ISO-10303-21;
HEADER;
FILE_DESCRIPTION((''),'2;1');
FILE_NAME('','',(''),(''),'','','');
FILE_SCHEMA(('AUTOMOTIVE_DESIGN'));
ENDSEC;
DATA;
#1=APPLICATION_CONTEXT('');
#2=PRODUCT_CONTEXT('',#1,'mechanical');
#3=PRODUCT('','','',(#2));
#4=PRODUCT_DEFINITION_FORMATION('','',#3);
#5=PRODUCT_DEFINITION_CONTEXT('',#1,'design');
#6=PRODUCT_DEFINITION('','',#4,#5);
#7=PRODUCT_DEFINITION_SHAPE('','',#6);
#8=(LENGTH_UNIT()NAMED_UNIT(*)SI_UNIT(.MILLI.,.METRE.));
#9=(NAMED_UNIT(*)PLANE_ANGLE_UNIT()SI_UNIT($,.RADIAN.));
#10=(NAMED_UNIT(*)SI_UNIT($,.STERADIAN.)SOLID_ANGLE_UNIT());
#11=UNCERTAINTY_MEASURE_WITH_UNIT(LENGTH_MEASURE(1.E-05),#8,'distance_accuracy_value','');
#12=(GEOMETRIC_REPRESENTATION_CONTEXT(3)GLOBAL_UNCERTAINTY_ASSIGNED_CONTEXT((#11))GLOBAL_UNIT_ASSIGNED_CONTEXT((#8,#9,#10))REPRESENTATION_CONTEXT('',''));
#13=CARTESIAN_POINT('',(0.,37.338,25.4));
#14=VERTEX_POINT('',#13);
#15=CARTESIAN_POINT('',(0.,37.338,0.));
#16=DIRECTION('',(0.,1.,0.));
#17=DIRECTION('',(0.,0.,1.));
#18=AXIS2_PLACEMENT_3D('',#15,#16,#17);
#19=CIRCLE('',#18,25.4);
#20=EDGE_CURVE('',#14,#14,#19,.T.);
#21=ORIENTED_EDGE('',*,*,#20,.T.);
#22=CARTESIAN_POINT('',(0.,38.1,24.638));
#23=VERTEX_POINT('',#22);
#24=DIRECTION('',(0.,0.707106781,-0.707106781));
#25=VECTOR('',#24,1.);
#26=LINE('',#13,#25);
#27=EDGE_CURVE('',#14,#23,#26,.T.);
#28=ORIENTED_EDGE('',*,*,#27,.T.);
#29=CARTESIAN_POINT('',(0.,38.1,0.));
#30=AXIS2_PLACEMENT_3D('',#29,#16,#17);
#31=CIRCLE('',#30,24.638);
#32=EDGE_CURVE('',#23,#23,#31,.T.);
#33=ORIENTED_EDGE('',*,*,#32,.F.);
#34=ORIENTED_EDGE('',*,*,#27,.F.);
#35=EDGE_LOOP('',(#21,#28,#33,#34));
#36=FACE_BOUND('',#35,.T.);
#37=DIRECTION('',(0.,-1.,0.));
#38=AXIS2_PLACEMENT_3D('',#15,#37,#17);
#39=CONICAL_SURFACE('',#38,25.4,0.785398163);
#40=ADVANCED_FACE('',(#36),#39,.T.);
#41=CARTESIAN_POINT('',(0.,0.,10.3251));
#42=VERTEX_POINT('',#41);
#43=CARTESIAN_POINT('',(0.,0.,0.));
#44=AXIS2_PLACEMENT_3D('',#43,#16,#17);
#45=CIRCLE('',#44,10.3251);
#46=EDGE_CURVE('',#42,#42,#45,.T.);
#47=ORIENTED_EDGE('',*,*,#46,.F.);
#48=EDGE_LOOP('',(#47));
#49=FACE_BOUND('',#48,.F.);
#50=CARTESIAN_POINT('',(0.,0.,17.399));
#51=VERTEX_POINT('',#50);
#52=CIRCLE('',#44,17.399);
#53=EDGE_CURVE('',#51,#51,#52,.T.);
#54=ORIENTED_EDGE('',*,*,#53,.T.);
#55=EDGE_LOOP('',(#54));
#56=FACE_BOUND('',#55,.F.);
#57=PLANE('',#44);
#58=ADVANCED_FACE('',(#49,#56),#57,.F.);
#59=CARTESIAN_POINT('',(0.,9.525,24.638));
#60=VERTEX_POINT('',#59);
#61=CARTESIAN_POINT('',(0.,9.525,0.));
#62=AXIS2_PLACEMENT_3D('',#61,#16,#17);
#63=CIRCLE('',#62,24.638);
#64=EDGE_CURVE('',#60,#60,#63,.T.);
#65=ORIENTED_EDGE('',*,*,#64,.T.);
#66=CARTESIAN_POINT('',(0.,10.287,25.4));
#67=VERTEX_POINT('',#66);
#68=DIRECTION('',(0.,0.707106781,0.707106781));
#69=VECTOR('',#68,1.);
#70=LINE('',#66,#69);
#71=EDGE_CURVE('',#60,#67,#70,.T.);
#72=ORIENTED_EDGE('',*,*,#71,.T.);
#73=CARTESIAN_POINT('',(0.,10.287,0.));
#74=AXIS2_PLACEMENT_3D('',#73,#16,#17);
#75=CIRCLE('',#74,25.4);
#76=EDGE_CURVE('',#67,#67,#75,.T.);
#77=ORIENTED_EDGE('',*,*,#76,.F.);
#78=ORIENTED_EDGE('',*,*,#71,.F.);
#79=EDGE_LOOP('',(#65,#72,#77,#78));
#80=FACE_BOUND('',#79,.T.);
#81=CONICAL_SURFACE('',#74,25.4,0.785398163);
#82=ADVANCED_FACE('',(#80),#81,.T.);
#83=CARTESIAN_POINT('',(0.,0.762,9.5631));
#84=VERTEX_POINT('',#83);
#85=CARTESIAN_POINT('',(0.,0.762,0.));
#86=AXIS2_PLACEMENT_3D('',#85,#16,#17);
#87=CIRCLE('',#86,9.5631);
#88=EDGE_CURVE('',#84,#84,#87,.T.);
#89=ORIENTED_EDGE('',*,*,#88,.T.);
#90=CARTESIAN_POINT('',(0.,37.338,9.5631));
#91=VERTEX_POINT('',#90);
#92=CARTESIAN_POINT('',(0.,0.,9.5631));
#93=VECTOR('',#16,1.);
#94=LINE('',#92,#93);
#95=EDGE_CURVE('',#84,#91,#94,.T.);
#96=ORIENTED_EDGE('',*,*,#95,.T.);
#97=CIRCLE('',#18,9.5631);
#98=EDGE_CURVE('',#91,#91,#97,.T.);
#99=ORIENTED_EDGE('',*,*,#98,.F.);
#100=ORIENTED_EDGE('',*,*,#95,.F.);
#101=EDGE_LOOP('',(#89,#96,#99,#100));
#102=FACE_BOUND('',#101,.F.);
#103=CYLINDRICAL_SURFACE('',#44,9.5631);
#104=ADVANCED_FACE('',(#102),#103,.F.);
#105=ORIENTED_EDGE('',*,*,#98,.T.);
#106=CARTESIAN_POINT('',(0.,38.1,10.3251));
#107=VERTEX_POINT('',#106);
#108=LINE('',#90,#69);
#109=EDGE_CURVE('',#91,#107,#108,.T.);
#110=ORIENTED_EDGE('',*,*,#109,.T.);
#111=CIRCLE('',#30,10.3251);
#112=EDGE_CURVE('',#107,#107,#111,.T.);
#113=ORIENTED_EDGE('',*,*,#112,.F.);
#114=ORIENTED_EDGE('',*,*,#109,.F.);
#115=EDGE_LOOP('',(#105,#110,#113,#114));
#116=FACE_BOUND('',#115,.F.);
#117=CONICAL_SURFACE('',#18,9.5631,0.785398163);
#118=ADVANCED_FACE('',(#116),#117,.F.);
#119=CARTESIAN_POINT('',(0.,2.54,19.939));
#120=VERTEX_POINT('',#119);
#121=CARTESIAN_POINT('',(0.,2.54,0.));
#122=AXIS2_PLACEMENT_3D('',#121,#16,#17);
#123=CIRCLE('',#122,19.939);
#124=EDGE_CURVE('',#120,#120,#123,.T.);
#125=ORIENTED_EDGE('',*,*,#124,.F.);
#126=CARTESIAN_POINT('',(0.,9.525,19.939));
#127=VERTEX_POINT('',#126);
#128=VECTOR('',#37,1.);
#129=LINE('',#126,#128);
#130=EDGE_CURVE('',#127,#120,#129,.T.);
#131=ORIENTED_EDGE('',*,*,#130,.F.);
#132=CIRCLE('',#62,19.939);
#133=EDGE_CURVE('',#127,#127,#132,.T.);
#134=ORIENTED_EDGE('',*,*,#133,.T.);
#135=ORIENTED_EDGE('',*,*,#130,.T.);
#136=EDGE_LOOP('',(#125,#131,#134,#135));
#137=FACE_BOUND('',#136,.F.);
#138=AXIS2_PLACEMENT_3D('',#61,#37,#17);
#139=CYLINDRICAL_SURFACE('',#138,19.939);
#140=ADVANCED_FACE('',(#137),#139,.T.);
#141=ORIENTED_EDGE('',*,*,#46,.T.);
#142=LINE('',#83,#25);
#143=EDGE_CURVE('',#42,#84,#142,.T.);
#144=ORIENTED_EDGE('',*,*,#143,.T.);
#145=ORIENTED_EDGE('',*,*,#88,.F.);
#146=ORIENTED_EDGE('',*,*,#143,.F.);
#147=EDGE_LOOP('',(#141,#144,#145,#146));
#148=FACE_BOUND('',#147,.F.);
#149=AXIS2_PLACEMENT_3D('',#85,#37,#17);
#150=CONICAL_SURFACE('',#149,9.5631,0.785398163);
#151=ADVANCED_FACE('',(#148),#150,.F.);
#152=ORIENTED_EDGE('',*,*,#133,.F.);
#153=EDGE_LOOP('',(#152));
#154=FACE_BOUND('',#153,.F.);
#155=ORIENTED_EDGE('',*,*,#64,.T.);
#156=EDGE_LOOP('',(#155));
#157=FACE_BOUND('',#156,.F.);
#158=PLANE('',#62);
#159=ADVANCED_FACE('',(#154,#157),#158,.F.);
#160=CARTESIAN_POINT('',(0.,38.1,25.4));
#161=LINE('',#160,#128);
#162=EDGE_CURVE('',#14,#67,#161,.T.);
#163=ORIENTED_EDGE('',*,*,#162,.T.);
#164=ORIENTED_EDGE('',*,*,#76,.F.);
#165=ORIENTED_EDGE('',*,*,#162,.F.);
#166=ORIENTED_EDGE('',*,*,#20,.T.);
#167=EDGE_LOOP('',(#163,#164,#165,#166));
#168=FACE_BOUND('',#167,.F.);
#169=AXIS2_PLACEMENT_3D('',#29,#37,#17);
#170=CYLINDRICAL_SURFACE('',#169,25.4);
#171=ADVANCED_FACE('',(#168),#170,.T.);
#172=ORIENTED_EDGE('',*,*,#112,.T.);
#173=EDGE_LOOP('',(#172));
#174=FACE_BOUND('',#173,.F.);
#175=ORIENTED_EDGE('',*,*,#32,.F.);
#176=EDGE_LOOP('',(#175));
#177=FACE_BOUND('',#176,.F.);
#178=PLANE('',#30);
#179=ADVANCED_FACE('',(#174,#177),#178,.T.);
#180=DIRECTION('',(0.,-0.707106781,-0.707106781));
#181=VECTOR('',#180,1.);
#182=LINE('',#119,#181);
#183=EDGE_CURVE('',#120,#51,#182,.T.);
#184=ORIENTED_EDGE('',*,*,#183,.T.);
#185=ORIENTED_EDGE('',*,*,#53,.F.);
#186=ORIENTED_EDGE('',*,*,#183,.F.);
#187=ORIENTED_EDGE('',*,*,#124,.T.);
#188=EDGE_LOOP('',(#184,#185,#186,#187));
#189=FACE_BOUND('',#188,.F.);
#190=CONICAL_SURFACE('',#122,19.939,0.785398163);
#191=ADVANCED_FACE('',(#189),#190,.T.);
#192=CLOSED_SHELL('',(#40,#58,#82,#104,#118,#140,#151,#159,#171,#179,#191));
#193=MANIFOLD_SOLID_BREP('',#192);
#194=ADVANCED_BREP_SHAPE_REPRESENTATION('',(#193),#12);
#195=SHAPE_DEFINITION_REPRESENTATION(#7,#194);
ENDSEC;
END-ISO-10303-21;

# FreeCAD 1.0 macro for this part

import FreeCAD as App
import Part
import Sketcher
Q = App.Units.Quantity


def edges_at(feature, points):
    """Names of the edges that pass closest to the given points."""
    edges = feature.Shape.Edges
    near = lambda p: min(range(len(edges)), key=lambda i: edges[i].distToShape(Part.Vertex(*p))[0])
    return sorted({f"Edge{near(p) + 1}" for p in points})

doc = App.newDocument("Part")
body = doc.addObject("PartDesign::Body", "Body")

sketch1 = doc.addObject("Sketcher::SketchObject", "Sketch")
body.addObject(sketch1)
sketch1.AttachmentSupport = (doc.YZ_Plane, [""])
sketch1.MapMode = "FlatFace"
sketch1.addGeometry([
    Part.LineSegment(App.Vector(10, 20, 0), App.Vector(0, 20, 0)),
    Part.LineSegment(App.Vector(0, 20, 0), App.Vector(0, 10, 0)),
    Part.LineSegment(App.Vector(0, 10, 0), App.Vector(38, 10, 0)),
    Part.LineSegment(App.Vector(38, 10, 0), App.Vector(38, 25, 0)),
    Part.LineSegment(App.Vector(38, 25, 0), App.Vector(10, 25, 0)),
    Part.LineSegment(App.Vector(10, 25, 0), App.Vector(10, 20, 0)),
], False)
sketch1.addConstraint([
    Sketcher.Constraint("Coincident", 0, 2, 1, 1),
    Sketcher.Constraint("Coincident", 1, 2, 2, 1),
    Sketcher.Constraint("Coincident", 2, 2, 3, 1),
    Sketcher.Constraint("Coincident", 3, 2, 4, 1),
    Sketcher.Constraint("Coincident", 4, 2, 5, 1),
    Sketcher.Constraint("Coincident", 5, 2, 0, 1),
    Sketcher.Constraint("Horizontal", 0),
    Sketcher.Constraint("Vertical", 1),
    Sketcher.Constraint("Horizontal", 2),
    Sketcher.Constraint("Vertical", 3),
    Sketcher.Constraint("Horizontal", 4),
    Sketcher.Constraint("Vertical", 5),
    Sketcher.Constraint("PointOnObject", 0, 2, -2),
    Sketcher.Constraint("DistanceX", 2, 1, 2, 2, Q("1.5 in")),
    Sketcher.Constraint("DistanceY", -1, 1, 3, 2, Q("1 in")),
    Sketcher.Constraint("DistanceX", 0, 2, 0, 1, Q("0.375 in")),
    Sketcher.Constraint("DistanceY", 5, 2, 5, 1, Q("0.215 in")),
    Sketcher.Constraint("DistanceY", 1, 2, 1, 1, Q("0.4085 in")),
])
revolution = doc.addObject("PartDesign::Revolution", "Revolution")
body.addObject(revolution)
revolution.Profile = sketch1
revolution.ReferenceAxis = (sketch1, ["H_Axis"])
revolution.Angle = 360
doc.recompute()

chamfer = doc.addObject("PartDesign::Chamfer", "Chamfer")
body.addObject(chamfer)
chamfer.Base = (revolution, edges_at(revolution, [(0, 0, -19.939)]))
chamfer.Size = Q("0.1 in")
doc.recompute()

chamfer2 = doc.addObject("PartDesign::Chamfer", "Chamfer001")
body.addObject(chamfer2)
chamfer2.Base = (chamfer, edges_at(chamfer, [
    (0, 0, -9.563),
    (0, 38.1, -9.563),
    (0, 19.05, 9.563),
    (0, 38.1, -25.4),
    (0, 9.525, -25.4),
    (0, 23.812, 25.4),
]))
chamfer2.Size = Q("0.03 in")

doc.recompute()
